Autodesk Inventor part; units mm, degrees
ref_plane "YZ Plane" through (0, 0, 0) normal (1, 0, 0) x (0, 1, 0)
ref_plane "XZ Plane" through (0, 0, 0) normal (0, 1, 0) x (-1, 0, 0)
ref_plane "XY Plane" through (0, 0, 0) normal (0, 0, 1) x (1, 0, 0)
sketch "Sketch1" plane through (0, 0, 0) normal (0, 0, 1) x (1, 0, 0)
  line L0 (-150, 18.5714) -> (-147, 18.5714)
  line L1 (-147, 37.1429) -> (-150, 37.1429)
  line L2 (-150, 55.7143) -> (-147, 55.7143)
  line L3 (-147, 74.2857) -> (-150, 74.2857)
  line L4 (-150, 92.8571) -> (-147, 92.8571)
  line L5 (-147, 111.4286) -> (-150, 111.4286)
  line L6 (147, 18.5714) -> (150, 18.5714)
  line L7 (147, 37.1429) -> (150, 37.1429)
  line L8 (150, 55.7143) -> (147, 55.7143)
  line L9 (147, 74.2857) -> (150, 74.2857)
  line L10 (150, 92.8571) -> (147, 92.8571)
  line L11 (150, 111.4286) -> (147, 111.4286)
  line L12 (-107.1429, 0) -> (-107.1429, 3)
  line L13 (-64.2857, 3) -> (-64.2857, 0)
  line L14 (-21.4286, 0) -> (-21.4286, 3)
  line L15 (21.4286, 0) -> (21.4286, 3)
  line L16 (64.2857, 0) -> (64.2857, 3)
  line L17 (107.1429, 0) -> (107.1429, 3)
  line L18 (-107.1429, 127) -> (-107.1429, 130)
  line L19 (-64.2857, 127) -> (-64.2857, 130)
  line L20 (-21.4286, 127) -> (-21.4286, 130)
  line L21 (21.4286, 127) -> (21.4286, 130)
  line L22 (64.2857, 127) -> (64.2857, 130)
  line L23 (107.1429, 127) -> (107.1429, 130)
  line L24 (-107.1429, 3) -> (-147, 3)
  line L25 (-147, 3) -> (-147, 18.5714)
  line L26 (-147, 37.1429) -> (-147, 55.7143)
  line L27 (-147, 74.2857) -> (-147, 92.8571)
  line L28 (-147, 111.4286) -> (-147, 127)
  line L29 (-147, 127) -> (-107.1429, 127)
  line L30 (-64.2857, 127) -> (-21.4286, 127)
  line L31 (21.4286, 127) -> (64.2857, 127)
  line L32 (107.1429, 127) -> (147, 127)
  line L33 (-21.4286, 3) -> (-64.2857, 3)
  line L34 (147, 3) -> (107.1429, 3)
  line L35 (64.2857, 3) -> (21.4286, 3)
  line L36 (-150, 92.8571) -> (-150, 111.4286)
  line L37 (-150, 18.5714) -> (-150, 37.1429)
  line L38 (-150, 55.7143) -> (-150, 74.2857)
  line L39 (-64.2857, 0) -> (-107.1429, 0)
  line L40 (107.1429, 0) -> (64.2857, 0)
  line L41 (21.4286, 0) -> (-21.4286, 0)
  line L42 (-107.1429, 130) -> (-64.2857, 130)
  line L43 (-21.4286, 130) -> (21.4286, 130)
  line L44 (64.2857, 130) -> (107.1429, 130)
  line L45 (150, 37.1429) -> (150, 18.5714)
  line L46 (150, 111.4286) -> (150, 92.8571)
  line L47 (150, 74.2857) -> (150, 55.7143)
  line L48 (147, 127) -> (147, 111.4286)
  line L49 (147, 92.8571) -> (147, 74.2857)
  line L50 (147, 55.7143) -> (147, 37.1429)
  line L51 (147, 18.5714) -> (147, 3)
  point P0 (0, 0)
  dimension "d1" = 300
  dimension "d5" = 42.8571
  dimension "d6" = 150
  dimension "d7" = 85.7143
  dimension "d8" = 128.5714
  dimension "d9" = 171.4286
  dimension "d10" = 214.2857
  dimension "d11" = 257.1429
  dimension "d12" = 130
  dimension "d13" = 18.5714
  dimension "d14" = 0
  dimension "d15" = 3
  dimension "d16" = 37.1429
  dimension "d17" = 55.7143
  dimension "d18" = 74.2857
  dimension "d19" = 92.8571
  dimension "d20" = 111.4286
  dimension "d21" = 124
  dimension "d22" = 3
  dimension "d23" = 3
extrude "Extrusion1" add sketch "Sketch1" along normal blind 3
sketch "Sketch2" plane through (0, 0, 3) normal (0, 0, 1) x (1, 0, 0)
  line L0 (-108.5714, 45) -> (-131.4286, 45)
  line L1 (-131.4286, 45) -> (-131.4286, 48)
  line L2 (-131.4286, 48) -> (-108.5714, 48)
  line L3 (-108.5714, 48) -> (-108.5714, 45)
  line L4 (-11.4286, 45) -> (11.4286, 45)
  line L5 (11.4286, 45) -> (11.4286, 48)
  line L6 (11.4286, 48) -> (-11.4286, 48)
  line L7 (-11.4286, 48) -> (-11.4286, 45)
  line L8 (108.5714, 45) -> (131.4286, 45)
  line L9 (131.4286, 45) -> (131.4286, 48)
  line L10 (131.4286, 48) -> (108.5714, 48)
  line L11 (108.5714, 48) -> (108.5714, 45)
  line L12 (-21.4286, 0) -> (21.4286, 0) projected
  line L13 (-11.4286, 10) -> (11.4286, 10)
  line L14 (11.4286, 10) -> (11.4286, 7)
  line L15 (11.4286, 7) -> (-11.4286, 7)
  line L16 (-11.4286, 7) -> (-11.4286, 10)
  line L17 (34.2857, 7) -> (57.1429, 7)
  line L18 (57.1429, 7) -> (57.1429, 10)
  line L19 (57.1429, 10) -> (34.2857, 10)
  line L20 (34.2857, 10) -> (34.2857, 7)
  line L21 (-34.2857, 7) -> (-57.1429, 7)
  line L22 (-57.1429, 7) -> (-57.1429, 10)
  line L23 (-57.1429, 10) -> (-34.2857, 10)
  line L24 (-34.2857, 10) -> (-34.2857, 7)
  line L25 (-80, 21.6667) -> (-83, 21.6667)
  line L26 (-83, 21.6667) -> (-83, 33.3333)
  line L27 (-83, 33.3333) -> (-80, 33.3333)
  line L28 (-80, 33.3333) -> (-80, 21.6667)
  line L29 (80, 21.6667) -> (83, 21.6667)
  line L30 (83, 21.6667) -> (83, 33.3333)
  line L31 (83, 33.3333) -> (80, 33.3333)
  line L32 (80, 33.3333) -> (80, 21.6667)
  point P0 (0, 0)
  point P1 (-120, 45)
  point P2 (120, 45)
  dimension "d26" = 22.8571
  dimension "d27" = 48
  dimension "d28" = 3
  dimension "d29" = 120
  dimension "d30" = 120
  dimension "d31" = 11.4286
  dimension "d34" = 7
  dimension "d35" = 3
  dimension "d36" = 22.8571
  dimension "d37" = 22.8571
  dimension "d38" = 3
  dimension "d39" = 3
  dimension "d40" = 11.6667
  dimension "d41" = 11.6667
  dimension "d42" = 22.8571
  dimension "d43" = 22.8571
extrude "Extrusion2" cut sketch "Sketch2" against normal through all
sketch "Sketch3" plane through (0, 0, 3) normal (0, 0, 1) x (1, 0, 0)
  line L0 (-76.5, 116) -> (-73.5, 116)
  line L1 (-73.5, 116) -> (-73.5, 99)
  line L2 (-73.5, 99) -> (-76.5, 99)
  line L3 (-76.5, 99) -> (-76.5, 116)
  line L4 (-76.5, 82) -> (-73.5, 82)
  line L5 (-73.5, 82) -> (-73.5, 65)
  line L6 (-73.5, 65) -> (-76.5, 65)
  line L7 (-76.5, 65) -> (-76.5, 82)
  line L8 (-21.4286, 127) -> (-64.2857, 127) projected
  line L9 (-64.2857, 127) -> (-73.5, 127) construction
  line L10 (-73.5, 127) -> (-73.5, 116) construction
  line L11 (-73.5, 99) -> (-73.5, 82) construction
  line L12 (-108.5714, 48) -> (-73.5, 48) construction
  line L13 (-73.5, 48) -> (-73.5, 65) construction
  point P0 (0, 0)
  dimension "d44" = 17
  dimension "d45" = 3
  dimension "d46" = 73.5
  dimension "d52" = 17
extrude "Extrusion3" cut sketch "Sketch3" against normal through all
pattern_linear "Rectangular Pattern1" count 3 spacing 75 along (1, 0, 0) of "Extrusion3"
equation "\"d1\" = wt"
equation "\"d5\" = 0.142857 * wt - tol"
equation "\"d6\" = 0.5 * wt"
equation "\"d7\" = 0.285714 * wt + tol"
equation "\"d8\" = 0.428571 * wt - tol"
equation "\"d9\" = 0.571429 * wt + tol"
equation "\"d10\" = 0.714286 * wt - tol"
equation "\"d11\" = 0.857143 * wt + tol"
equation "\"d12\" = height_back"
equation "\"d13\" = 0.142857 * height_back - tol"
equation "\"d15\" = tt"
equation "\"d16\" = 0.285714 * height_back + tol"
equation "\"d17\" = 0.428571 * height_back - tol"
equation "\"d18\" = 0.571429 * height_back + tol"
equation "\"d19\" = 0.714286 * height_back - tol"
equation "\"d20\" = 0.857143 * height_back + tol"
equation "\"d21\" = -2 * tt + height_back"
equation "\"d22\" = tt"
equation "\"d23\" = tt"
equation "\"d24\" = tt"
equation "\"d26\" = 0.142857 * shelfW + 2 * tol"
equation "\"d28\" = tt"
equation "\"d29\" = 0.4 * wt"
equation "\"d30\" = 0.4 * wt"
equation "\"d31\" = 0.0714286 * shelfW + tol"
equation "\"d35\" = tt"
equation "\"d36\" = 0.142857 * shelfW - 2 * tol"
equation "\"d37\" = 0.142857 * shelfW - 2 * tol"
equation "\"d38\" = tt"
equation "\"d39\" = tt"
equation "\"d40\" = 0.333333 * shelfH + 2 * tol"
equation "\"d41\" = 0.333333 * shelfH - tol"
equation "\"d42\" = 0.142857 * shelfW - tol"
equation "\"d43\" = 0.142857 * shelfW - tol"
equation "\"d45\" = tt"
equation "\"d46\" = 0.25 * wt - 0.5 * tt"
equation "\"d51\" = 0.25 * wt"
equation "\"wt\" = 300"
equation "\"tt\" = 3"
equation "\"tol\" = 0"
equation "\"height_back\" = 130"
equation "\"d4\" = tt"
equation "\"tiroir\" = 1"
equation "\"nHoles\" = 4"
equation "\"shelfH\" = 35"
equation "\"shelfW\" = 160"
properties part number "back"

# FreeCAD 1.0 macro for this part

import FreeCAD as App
import Part
import Sketcher
Q = App.Units.Quantity


def add_polygon(sketch, points):
    """Adds a closed chain of lines whose ends are joined by coincident constraints."""
    first, n = sketch.GeometryCount, len(points)
    for a, b in zip(points, points[1:] + points[:1]):
        sketch.addGeometry(Part.LineSegment(App.Vector(*a, 0), App.Vector(*b, 0)), False)
    for i in range(n):
        sketch.addConstraint(Sketcher.Constraint("Coincident", first + i, 2, first + (i + 1) % n, 1))

doc = App.newDocument("Part")
body = doc.addObject("PartDesign::Body", "Body")

# Sketch on XY plane
sketch1 = body.newObject("Sketcher::SketchObject", "Sketch")
sketch1.AttachmentSupport = (doc.getObject("XY_Plane"), [""])
sketch1.MapMode = "FlatFace"
add_polygon(sketch1, [(-150, 37.1), (-150, 18.6), (-147, 18.6), (-147, 3), (-107.1, 3), (-107.1, 0), (-64.3, 0), (-64.3, 3), (-21.4, 3), (-21.4, 0), (21.4, 0), (21.4, 3), (64.3, 3), (64.3, 0), (107.1, 0), (107.1, 3), (147, 3), (147, 18.6), (150, 18.6), (150, 37.1), (147, 37.1), (147, 55.7), (150, 55.7), (150, 74.3), (147, 74.3), (147, 92.9), (150, 92.9), (150, 111.4), (147, 111.4), (147, 127), (107.1, 127), (107.1, 130), (64.3, 130), (64.3, 127), (21.4, 127), (21.4, 130), (-21.4, 130), (-21.4, 127), (-64.3, 127), (-64.3, 130), (-107.1, 130), (-107.1, 127), (-147, 127), (-147, 111.4), (-150, 111.4), (-150, 92.9), (-147, 92.9), (-147, 74.3), (-150, 74.3), (-150, 55.7), (-147, 55.7), (-147, 37.1)])  # lines 0-51
sketch1.addConstraint([
    Sketcher.Constraint("Vertical", 0),
    Sketcher.Constraint("Horizontal", 1),
    Sketcher.Constraint("Vertical", 2),
    Sketcher.Constraint("Horizontal", 3),
    Sketcher.Constraint("Vertical", 4),
    Sketcher.Constraint("Horizontal", 5),
    Sketcher.Constraint("Vertical", 6),
    Sketcher.Constraint("Horizontal", 7),
    Sketcher.Constraint("Vertical", 8),
    Sketcher.Constraint("Horizontal", 9),
    Sketcher.Constraint("Vertical", 10),
    Sketcher.Constraint("Horizontal", 11),
    Sketcher.Constraint("Vertical", 12),
    Sketcher.Constraint("Horizontal", 13),
    Sketcher.Constraint("Vertical", 14),
    Sketcher.Constraint("Horizontal", 15),
    Sketcher.Constraint("Vertical", 16),
    Sketcher.Constraint("Horizontal", 17),
    Sketcher.Constraint("Vertical", 18),
    Sketcher.Constraint("Horizontal", 19),
    Sketcher.Constraint("Vertical", 20),
    Sketcher.Constraint("Horizontal", 21),
    Sketcher.Constraint("Vertical", 22),
    Sketcher.Constraint("Horizontal", 23),
    Sketcher.Constraint("Vertical", 24),
    Sketcher.Constraint("Horizontal", 25),
    Sketcher.Constraint("Vertical", 26),
    Sketcher.Constraint("Horizontal", 27),
    Sketcher.Constraint("Vertical", 28),
    Sketcher.Constraint("Horizontal", 29),
    Sketcher.Constraint("Vertical", 30),
    Sketcher.Constraint("Horizontal", 31),
    Sketcher.Constraint("Vertical", 32),
    Sketcher.Constraint("Horizontal", 33),
    Sketcher.Constraint("Vertical", 34),
    Sketcher.Constraint("Horizontal", 35),
    Sketcher.Constraint("Vertical", 36),
    Sketcher.Constraint("Horizontal", 37),
    Sketcher.Constraint("Vertical", 38),
    Sketcher.Constraint("Horizontal", 39),
    Sketcher.Constraint("Vertical", 40),
    Sketcher.Constraint("Horizontal", 41),
    Sketcher.Constraint("Vertical", 42),
    Sketcher.Constraint("Horizontal", 43),
    Sketcher.Constraint("Vertical", 44),
    Sketcher.Constraint("Horizontal", 45),
    Sketcher.Constraint("Vertical", 46),
    Sketcher.Constraint("Horizontal", 47),
    Sketcher.Constraint("Vertical", 48),
    Sketcher.Constraint("Horizontal", 49),
    Sketcher.Constraint("Vertical", 50),
    Sketcher.Constraint("Horizontal", 51),
    Sketcher.Constraint("Symmetric", 8, 2, 9, 2, -1, 1),
    Sketcher.Constraint("Symmetric", 5, 2, 12, 2, -1, 1),
    Sketcher.Constraint("Symmetric", 4, 2, 13, 2, -2),
    Sketcher.Constraint("Symmetric", 2, 2, 15, 2, -2),
    Sketcher.Constraint("Symmetric", 0, 2, 17, 2, -2),
    Sketcher.Constraint("Symmetric", 33, 2, 36, 2, -2),
    Sketcher.Constraint("Symmetric", 31, 2, 38, 2, -2),
    Sketcher.Constraint("Symmetric", 29, 2, 40, 2, -2),
    Sketcher.Constraint("Symmetric", 27, 2, 42, 2, -2),
    Sketcher.Constraint("Symmetric", 25, 2, 44, 2, -2),
    Sketcher.Constraint("Symmetric", 23, 2, 46, 2, -2),
    Sketcher.Constraint("Symmetric", 21, 2, 48, 2, -2),
    Sketcher.Constraint("Symmetric", 19, 2, 50, 2, -2),
    Sketcher.Constraint("Horizontal", 3, 2, 6, 2),
    Sketcher.Constraint("Horizontal", 7, 2, 10, 2),
    Sketcher.Constraint("Horizontal", 29, 2, 32, 2),
    Sketcher.Constraint("Horizontal", 31, 2, 34, 2),
    Sketcher.Constraint("Vertical", 16, 2, 19, 2),
    Sketcher.Constraint("Vertical", 18, 2, 21, 2),
    Sketcher.Constraint("Vertical", 20, 2, 23, 2),
    Sketcher.Constraint("Vertical", 22, 2, 25, 2),
    Sketcher.Constraint("Vertical", 24, 2, 27, 2),
    Sketcher.Constraint("Vertical", 14, 2, 29, 2),
    Sketcher.Constraint("Vertical", 12, 2, 31, 2),
    Sketcher.Constraint("Vertical", 10, 2, 33, 2),
    Sketcher.Constraint("Equal", 5, 7),
    Sketcher.Constraint("Equal", 7, 9),
    Sketcher.Constraint("Equal", 51, 4),
    Sketcher.Constraint("Equal", 18, 20),
    Sketcher.Constraint("Equal", 20, 22),
    Sketcher.Constraint("Equal", 22, 24),
    Sketcher.Constraint("Equal", 24, 26),
    Sketcher.Constraint("Equal", 16, 28),
    Sketcher.Constraint("Equal", 14, 30),
    Sketcher.Constraint("DistanceX", 1, 1, 1, 2, Q("3 mm")),
    Sketcher.Constraint("DistanceX", 0, 2, -1, 1, Q("150 mm")),
    Sketcher.Constraint("DistanceY", -1, 1, 30, 2, Q("130 mm")),
    Sketcher.Constraint("DistanceX", 7, 1, 7, 2, Q("42.857 mm")),
    Sketcher.Constraint("DistanceY", 0, 2, 0, 1, Q("18.5715 mm")),
])
pad1 = body.newObject("PartDesign::Pad", "Pad")
pad1.Profile = sketch1
pad1.Length = 3

# Sketch on XY plane
sketch2 = body.newObject("Sketcher::SketchObject", "Sketch001")
sketch2.AttachmentSupport = (doc.getObject("XY_Plane"), [""])
sketch2.MapMode = "FlatFace"
sketch2.AttachmentOffset = App.Placement(App.Vector(0, 0, 3), App.Rotation())
add_polygon(sketch2, [(-131.4, 45), (-108.6, 45), (-108.6, 48), (-131.4, 48)])  # lines 0-3
add_polygon(sketch2, [(-11.4, 48), (-11.4, 45), (11.4, 45), (11.4, 48)])  # lines 4-7
add_polygon(sketch2, [(108.6, 48), (108.6, 45), (131.4, 45), (131.4, 48)])  # lines 8-11
add_polygon(sketch2, [(11.4, 10), (-11.4, 10), (-11.4, 7), (11.4, 7)])  # lines 12-15
add_polygon(sketch2, [(34.3, 10), (34.3, 7), (57.1, 7), (57.1, 10)])  # lines 16-19
add_polygon(sketch2, [(-57.1, 7), (-34.3, 7), (-34.3, 10), (-57.1, 10)])  # lines 20-23
add_polygon(sketch2, [(-83, 21.7), (-80, 21.7), (-80, 33.3), (-83, 33.3)])  # lines 24-27
add_polygon(sketch2, [(80, 33.3), (80, 21.7), (83, 21.7), (83, 33.3)])  # lines 28-31
sketch2.addConstraint([
    Sketcher.Constraint("Horizontal", 0),
    Sketcher.Constraint("Vertical", 1),
    Sketcher.Constraint("Horizontal", 2),
    Sketcher.Constraint("Vertical", 3),
    Sketcher.Constraint("Vertical", 4),
    Sketcher.Constraint("Horizontal", 5),
    Sketcher.Constraint("Vertical", 6),
    Sketcher.Constraint("Horizontal", 7),
    Sketcher.Constraint("Vertical", 8),
    Sketcher.Constraint("Horizontal", 9),
    Sketcher.Constraint("Vertical", 10),
    Sketcher.Constraint("Horizontal", 11),
    Sketcher.Constraint("Horizontal", 12),
    Sketcher.Constraint("Vertical", 13),
    Sketcher.Constraint("Horizontal", 14),
    Sketcher.Constraint("Vertical", 15),
    Sketcher.Constraint("Vertical", 16),
    Sketcher.Constraint("Horizontal", 17),
    Sketcher.Constraint("Vertical", 18),
    Sketcher.Constraint("Horizontal", 19),
    Sketcher.Constraint("Horizontal", 20),
    Sketcher.Constraint("Vertical", 21),
    Sketcher.Constraint("Horizontal", 22),
    Sketcher.Constraint("Vertical", 23),
    Sketcher.Constraint("Horizontal", 24),
    Sketcher.Constraint("Vertical", 25),
    Sketcher.Constraint("Horizontal", 26),
    Sketcher.Constraint("Vertical", 27),
    Sketcher.Constraint("Vertical", 28),
    Sketcher.Constraint("Horizontal", 29),
    Sketcher.Constraint("Vertical", 30),
    Sketcher.Constraint("Horizontal", 31),
    Sketcher.Constraint("Symmetric", 0, 2, 8, 2, -2),
    Sketcher.Constraint("Symmetric", 2, 2, 10, 2, -2),
    Sketcher.Constraint("Symmetric", 16, 2, 20, 2, -2),
    Sketcher.Constraint("Symmetric", 18, 2, 22, 2, -2),
    Sketcher.Constraint("Symmetric", 24, 2, 28, 2, -2),
    Sketcher.Constraint("Symmetric", 26, 2, 30, 2, -2),
    Sketcher.Constraint("Horizontal", 3, 2, 4, 2),
    Sketcher.Constraint("Horizontal", 2, 2, 6, 2),
    Sketcher.Constraint("Horizontal", 14, 2, 16, 2),
    Sketcher.Constraint("Horizontal", 15, 2, 18, 2),
    Sketcher.Constraint("Vertical", 7, 2, 12, 2),
    Sketcher.Constraint("Vertical", 6, 2, 14, 2),
    Sketcher.Constraint("Equal", 2, 5),
    Sketcher.Constraint("Equal", 14, 17),
    Sketcher.Constraint("Equal", 31, 1),
    Sketcher.Constraint("Equal", 10, 13),
    Sketcher.Constraint("DistanceX", 24, 1, 24, 2, Q("3 mm")),
    Sketcher.Constraint("DistanceY", -1, 1, 1, 2, Q("48 mm")),
    Sketcher.Constraint("DistanceY", -1, 1, 13, 2, Q("7 mm")),
    Sketcher.Constraint("DistanceX", 3, 2, 4, 2, Q("120 mm")),
    Sketcher.Constraint("DistanceX", 4, 2, 8, 2, Q("120 mm")),
    Sketcher.Constraint("DistanceX", 0, 1, 0, 2, Q("22.8572 mm")),
    Sketcher.Constraint("DistanceY", 25, 1, 25, 2, Q("11.6666 mm")),
    Sketcher.Constraint("DistanceX", 24, 2, -1, 1, Q("80 mm")),
    Sketcher.Constraint("DistanceX", 14, 2, 16, 2, Q("22.857 mm")),
    Sketcher.Constraint("DistanceY", 22, 2, 24, 2, Q("11.6667 mm")),
])
pocket1 = body.newObject("PartDesign::Pocket", "Pocket")
pocket1.Profile = sketch2
pocket1.Type = "ThroughAll"

# Sketch on XY plane
sketch3 = body.newObject("Sketcher::SketchObject", "Sketch002")
sketch3.AttachmentSupport = (doc.getObject("XY_Plane"), [""])
sketch3.MapMode = "FlatFace"
sketch3.AttachmentOffset = App.Placement(App.Vector(0, 0, 3), App.Rotation())
add_polygon(sketch3, [(-73.5, 116), (-76.5, 116), (-76.5, 99), (-73.5, 99)])  # lines 0-3
add_polygon(sketch3, [(-73.5, 82), (-76.5, 82), (-76.5, 65), (-73.5, 65)])  # lines 4-7
sketch3.addConstraint([
    Sketcher.Constraint("Horizontal", 0),
    Sketcher.Constraint("Vertical", 1),
    Sketcher.Constraint("Horizontal", 2),
    Sketcher.Constraint("Vertical", 3),
    Sketcher.Constraint("Horizontal", 4),
    Sketcher.Constraint("Vertical", 5),
    Sketcher.Constraint("Horizontal", 6),
    Sketcher.Constraint("Vertical", 7),
    Sketcher.Constraint("Vertical", 1, 2, 4, 2),
    Sketcher.Constraint("Vertical", 3, 2, 6, 2),
    Sketcher.Constraint("Equal", 3, 5),
    Sketcher.Constraint("DistanceX", 0, 2, 0, 1, Q("3 mm")),
    Sketcher.Constraint("DistanceY", 1, 2, 1, 1, Q("17 mm")),
    Sketcher.Constraint("DistanceY", 4, 2, 1, 2, Q("17 mm")),
    Sketcher.Constraint("DistanceX", 2, 2, -1, 1, Q("73.5 mm")),
    Sketcher.Constraint("DistanceY", -1, 1, 0, 2, Q("116 mm")),
])
pocket2 = body.newObject("PartDesign::Pocket", "Pocket001")
pocket2.Profile = sketch3
pocket2.Type = "ThroughAll"
doc.recompute()

linearpattern = body.newObject("PartDesign::LinearPattern", "LinearPattern")
linearpattern.Originals = [pocket2]
linearpattern.Direction = (doc.getObject("X_Axis"), [""])
linearpattern.Mode = "offset"
linearpattern.Offset = 75
linearpattern.Occurrences = 3
body.Tip = linearpattern

doc.recompute()
